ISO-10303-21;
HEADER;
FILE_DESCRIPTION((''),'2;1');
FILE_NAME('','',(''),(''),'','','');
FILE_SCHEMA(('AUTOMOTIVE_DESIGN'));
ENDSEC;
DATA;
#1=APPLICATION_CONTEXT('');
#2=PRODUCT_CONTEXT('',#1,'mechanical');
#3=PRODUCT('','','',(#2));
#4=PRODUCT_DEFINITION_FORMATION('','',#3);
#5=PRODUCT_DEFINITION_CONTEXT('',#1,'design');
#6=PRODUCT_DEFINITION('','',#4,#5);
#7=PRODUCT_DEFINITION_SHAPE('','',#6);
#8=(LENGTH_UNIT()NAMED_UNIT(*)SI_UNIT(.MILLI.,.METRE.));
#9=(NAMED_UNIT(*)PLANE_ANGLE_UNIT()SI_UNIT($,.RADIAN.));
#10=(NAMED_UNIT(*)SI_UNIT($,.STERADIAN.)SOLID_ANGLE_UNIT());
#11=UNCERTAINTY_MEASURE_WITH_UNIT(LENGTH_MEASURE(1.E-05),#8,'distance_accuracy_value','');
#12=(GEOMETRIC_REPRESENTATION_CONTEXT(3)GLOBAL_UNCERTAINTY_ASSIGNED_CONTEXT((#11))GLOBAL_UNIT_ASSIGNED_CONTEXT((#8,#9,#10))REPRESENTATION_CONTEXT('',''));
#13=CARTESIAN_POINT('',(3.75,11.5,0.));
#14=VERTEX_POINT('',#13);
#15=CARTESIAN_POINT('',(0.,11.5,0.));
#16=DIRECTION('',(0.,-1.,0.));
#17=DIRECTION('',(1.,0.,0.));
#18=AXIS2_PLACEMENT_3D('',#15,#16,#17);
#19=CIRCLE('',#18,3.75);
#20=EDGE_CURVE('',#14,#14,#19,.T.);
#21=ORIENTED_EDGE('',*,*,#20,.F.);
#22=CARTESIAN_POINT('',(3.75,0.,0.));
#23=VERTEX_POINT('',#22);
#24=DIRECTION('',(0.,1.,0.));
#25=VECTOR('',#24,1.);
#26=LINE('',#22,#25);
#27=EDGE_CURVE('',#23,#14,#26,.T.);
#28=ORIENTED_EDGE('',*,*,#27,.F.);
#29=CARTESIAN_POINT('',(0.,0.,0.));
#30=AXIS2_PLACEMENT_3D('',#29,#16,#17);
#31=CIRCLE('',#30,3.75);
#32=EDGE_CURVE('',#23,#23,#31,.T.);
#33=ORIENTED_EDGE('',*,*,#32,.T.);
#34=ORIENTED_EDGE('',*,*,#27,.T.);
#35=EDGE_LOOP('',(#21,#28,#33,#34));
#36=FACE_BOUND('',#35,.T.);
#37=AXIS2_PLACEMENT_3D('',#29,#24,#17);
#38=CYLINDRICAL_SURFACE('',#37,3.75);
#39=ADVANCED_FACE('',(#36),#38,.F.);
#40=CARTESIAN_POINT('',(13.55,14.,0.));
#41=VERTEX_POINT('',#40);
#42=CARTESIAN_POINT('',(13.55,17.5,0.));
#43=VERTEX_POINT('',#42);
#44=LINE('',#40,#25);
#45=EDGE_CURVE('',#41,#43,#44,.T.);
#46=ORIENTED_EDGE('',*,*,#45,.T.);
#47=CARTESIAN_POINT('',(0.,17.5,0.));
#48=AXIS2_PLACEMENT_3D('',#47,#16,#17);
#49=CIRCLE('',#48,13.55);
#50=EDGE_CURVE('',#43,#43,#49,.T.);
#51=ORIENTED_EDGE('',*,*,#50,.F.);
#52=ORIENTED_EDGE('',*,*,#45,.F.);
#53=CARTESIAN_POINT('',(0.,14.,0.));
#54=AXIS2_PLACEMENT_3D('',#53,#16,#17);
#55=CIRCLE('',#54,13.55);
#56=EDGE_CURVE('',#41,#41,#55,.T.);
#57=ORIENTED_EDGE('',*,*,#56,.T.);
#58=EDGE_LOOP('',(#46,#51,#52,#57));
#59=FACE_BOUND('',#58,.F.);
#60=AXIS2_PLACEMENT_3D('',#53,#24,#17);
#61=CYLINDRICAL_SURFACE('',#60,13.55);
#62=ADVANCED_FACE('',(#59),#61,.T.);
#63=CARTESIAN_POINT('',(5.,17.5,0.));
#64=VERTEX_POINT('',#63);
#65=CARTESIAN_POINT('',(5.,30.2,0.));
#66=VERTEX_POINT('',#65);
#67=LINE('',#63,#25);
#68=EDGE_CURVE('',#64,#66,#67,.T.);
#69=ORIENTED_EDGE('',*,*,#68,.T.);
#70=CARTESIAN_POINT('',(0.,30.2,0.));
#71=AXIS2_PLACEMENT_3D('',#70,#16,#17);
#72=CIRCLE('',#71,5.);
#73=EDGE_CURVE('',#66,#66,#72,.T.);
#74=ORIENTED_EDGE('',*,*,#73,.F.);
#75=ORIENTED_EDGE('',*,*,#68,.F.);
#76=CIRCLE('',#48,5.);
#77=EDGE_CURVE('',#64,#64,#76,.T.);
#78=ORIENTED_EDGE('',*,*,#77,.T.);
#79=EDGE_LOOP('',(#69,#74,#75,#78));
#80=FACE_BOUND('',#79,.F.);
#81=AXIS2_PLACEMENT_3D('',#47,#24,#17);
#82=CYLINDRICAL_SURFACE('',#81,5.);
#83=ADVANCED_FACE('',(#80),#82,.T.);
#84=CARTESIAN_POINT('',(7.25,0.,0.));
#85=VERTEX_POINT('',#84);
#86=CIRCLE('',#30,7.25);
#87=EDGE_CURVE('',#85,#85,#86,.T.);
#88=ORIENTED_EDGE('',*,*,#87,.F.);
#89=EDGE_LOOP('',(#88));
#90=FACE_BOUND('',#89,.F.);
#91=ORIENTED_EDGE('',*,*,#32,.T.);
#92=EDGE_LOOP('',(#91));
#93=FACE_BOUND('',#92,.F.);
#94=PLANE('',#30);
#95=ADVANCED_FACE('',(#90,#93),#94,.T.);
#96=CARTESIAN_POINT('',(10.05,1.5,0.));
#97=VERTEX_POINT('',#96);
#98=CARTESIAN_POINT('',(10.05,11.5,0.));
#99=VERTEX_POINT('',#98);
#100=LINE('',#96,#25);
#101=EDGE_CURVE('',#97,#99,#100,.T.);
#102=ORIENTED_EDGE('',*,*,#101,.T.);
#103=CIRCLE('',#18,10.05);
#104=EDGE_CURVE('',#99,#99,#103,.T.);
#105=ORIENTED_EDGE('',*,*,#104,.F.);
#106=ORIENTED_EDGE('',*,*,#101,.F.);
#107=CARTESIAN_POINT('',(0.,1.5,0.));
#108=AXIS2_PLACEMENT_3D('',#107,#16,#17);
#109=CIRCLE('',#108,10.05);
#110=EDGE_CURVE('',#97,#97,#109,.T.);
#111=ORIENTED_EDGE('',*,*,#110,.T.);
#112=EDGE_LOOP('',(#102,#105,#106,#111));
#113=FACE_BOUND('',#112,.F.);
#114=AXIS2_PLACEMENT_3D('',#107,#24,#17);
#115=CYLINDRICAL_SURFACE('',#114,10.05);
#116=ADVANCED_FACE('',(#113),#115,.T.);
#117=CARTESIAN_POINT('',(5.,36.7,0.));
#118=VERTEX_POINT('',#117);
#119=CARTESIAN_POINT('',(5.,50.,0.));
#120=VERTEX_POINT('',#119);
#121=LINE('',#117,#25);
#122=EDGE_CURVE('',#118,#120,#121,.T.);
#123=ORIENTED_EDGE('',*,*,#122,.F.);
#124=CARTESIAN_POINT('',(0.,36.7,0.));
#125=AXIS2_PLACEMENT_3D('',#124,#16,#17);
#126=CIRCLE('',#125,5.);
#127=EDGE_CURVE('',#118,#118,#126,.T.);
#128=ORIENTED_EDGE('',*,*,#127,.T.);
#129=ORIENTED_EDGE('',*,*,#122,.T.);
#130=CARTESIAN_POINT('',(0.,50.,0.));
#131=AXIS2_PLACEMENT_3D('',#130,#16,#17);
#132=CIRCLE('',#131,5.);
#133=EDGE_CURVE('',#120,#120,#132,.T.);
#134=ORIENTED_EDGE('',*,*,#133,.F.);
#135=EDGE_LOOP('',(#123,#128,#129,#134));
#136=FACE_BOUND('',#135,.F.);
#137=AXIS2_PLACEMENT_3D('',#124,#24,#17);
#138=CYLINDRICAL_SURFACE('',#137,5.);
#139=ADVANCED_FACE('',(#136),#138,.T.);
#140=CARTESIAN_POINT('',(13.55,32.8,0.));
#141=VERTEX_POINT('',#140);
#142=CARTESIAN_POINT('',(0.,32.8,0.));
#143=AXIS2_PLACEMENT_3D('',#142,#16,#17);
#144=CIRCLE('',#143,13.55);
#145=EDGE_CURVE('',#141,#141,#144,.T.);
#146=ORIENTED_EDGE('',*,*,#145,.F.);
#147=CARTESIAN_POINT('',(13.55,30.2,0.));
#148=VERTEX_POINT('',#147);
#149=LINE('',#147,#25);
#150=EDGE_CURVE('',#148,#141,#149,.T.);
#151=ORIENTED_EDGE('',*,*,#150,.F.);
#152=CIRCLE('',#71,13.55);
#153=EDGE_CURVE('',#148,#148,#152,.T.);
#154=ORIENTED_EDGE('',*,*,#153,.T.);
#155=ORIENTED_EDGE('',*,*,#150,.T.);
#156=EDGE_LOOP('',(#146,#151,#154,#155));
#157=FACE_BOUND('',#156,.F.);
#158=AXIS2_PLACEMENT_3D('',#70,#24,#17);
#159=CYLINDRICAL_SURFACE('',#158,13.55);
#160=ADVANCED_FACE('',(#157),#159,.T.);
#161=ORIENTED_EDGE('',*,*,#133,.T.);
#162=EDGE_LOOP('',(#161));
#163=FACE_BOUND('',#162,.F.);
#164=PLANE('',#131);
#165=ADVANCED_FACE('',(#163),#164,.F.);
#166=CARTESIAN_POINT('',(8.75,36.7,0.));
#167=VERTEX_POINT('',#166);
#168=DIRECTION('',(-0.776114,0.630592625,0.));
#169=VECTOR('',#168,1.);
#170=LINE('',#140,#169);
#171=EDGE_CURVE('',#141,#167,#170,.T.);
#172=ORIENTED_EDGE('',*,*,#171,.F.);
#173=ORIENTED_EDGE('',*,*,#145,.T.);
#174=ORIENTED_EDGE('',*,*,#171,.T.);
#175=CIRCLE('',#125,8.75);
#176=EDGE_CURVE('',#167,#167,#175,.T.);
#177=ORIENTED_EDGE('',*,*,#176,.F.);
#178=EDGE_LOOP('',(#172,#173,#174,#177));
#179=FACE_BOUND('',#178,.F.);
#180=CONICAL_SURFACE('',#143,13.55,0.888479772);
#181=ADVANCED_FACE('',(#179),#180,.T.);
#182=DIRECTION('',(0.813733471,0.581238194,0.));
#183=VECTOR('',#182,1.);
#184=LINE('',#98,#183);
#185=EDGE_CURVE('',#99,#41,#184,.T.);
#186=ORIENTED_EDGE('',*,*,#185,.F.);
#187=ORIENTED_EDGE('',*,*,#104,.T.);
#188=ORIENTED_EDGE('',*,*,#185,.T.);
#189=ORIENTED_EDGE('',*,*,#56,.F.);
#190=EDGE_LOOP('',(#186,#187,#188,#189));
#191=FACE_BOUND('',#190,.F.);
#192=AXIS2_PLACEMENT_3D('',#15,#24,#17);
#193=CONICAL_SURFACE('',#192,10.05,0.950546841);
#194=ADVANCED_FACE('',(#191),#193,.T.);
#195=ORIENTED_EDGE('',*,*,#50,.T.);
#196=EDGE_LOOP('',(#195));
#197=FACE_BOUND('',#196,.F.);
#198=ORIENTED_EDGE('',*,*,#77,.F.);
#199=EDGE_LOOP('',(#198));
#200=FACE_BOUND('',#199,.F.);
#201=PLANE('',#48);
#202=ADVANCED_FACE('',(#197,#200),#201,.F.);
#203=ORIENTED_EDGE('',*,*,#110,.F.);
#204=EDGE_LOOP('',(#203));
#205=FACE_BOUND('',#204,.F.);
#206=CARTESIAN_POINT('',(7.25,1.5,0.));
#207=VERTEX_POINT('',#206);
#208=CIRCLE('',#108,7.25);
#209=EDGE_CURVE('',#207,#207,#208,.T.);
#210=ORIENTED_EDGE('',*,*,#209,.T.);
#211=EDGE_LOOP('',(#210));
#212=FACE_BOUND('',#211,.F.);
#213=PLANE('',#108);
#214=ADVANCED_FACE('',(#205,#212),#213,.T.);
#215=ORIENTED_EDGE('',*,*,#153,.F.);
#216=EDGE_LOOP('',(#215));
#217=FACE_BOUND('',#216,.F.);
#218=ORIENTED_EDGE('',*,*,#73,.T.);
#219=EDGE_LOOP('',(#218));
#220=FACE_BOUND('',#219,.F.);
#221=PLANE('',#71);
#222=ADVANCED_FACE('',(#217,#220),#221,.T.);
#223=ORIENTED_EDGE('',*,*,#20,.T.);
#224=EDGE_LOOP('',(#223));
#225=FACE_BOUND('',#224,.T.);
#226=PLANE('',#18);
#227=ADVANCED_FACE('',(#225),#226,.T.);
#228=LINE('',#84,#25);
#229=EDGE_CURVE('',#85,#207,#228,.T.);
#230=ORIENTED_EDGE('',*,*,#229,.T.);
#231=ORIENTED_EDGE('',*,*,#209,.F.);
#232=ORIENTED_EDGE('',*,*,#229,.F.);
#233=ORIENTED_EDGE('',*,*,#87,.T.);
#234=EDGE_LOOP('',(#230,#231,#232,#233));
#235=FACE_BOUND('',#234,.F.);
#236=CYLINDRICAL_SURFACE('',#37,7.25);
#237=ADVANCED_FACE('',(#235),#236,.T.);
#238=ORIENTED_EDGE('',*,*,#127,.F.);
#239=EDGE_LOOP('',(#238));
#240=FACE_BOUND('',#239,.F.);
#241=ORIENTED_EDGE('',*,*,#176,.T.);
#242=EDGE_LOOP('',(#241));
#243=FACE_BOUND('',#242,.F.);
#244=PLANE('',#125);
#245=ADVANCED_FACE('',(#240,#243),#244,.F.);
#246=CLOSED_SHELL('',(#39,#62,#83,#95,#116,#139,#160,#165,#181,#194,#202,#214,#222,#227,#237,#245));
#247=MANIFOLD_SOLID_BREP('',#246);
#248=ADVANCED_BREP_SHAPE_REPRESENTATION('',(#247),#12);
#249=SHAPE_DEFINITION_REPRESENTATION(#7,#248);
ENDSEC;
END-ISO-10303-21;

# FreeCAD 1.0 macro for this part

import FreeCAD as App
import Part
import Sketcher

V = App.Vector


def add_polygon(sketch, points):
    """Adds a closed chain of lines whose ends are joined by coincident constraints."""
    first, n = sketch.GeometryCount, len(points)
    for a, b in zip(points, points[1:] + points[:1]):
        sketch.addGeometry(Part.LineSegment(App.Vector(*a, 0), App.Vector(*b, 0)), False)
    for i in range(n):
        sketch.addConstraint(Sketcher.Constraint("Coincident", first + i, 2, first + (i + 1) % n, 1))

doc = App.newDocument("Part")
params = doc.addObject("Spreadsheet::Sheet", "Params")
for row, (alias, value) in enumerate([
    ("sketch1_width", "5 mm"),
    ("sketch1_height", "10 mm"),
    ("sketch1_width2", "3.5 mm"),
    ("sketch1_width3", "2.8 mm"),
    ("sketch1_height2", "1.5 mm"),
    ("revolution_angle", "360 deg"),
], start=1):
    params.set(f"A{row}", alias)
    params.set(f"B{row}", "=" + value)
    params.setAlias(f"B{row}", alias)

body = doc.addObject("PartDesign::Body", "Body")

# Sketch on XY plane
sketch1 = body.newObject("Sketcher::SketchObject", "Sketch")
sketch1.AttachmentSupport = (doc.getObject("XY_Plane"), [""])
sketch1.MapMode = "FlatFace"
add_polygon(sketch1, [(3.75, 11.5), (3.75, 0), (7.25, 0), (7.25, 1.5), (10.05, 1.5), (10.05, 11.5), (13.55, 14), (13.55, 17.5), (5, 17.5), (5, 30.2), (13.55, 30.2), (13.55, 32.8), (8.75, 36.7), (5, 36.7), (5, 50), (0, 50), (0, 11.5)])  # lines 0-16
sketch1.addConstraint([
    Sketcher.Constraint("Vertical", 0),
    Sketcher.Constraint("Horizontal", 1),
    Sketcher.Constraint("Vertical", 2),
    Sketcher.Constraint("Horizontal", 3),
    Sketcher.Constraint("Vertical", 4),
    Sketcher.Constraint("Vertical", 6),
    Sketcher.Constraint("Horizontal", 7),
    Sketcher.Constraint("Vertical", 8),
    Sketcher.Constraint("Horizontal", 9),
    Sketcher.Constraint("Vertical", 10),
    Sketcher.Constraint("Horizontal", 12),
    Sketcher.Constraint("Vertical", 13),
    Sketcher.Constraint("Horizontal", 14),
    Sketcher.Constraint("Vertical", 15),
    Sketcher.Constraint("Horizontal", 16),
    Sketcher.Constraint("PointOnObject", 0, 2, -1),
    Sketcher.Constraint("PointOnObject", 14, 2, -2),
    Sketcher.Constraint("Horizontal", 4, 2, 15, 2),
    Sketcher.Constraint("Vertical", 6, 2, 9, 2),
    Sketcher.Constraint("Vertical", 8, 2, 12, 2),
    Sketcher.Constraint("Equal", 12, 16),
    Sketcher.Constraint("Equal", 1, 6),
    Sketcher.Constraint("DistanceX", 14, 2, 14, 1, 5.0),
    Sketcher.Constraint("DistanceY", 4, 1, 4, 2, 10.0),
    Sketcher.Constraint("DistanceX", 1, 1, 1, 2, 3.5),
    Sketcher.Constraint("DistanceX", 3, 1, 3, 2, 2.8),
    Sketcher.Constraint("DistanceY", 2, 1, 2, 2, 1.5),
    Sketcher.Constraint("DistanceY", 8, 1, 8, 2, 12.7),
    Sketcher.Constraint("DistanceY", 10, 1, 10, 2, 2.6),
    Sketcher.Constraint("DistanceY", -1, 1, 13, 2, 50.0),
    Sketcher.Constraint("DistanceX", 12, 2, 12, 1, 3.75),
    Sketcher.Constraint("DistanceX", 4, 2, 5, 2, 3.5),
    Sketcher.Constraint("DistanceY", 4, 2, 5, 2, 2.5),
    Sketcher.Constraint("DistanceY", 10, 2, 11, 2, 3.9),
])
sketch1.setExpression("Constraints[39]", "Params.sketch1_width")
sketch1.setExpression("Constraints[40]", "Params.sketch1_height")
sketch1.setExpression("Constraints[41]", "Params.sketch1_width2")
sketch1.setExpression("Constraints[42]", "Params.sketch1_width3")
sketch1.setExpression("Constraints[43]", "Params.sketch1_height2")
revolution = body.newObject("PartDesign::Revolution", "Revolution")
revolution.Profile = sketch1
revolution.ReferenceAxis = (sketch1, ["V_Axis"])
revolution.setExpression("Angle", "Params.revolution_angle")

doc.recompute()
